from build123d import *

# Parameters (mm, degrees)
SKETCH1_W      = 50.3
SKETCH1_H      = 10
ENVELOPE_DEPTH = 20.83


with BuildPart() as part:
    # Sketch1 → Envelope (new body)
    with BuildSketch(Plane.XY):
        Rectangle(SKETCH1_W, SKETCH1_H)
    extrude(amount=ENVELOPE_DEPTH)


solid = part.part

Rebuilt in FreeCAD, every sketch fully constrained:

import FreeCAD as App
import Part
import Sketcher
Q = App.Units.Quantity

doc = App.newDocument("Part")
params = doc.addObject("Spreadsheet::Sheet", "Params")
for row, (alias, value) in enumerate([
    ("sketch1_height", "10 mm"),
    ("sketch1_width", "50.3 mm"),
    ("pad1_length", "20.83 mm"),
], start=1):
    params.set(f"A{row}", alias)
    params.set(f"B{row}", "=" + value)
    params.setAlias(f"B{row}", alias)

body = doc.addObject("PartDesign::Body", "Body")

# Sketch on XY plane
sketch1 = body.newObject("Sketcher::SketchObject", "Sketch")
sketch1.AttachmentSupport = (doc.getObject("XY_Plane"), [""])
sketch1.MapMode = "FlatFace"
sketch1.addGeometry([
    Part.LineSegment(App.Vector(-25, 5, 0), App.Vector(-25, -5, 0)),
    Part.LineSegment(App.Vector(-25, -5, 0), App.Vector(25, -5, 0)),
    Part.LineSegment(App.Vector(25, -5, 0), App.Vector(25, 5, 0)),
    Part.LineSegment(App.Vector(25, 5, 0), App.Vector(-25, 5, 0)),
], False)
sketch1.addConstraint([
    Sketcher.Constraint("Coincident", 0, 2, 1, 1),
    Sketcher.Constraint("Coincident", 1, 2, 2, 1),
    Sketcher.Constraint("Coincident", 2, 2, 3, 1),
    Sketcher.Constraint("Coincident", 3, 2, 0, 1),
    Sketcher.Constraint("Vertical", 0),
    Sketcher.Constraint("Horizontal", 1),
    Sketcher.Constraint("Vertical", 2),
    Sketcher.Constraint("Horizontal", 3),
    Sketcher.Constraint("Symmetric", 0, 2, 2, 2, -1, 1),
    Sketcher.Constraint("DistanceY", 0, 2, 0, 1, Q("10 mm")),
    Sketcher.Constraint("DistanceX", 1, 1, 1, 2, Q("50.3 mm")),
])
sketch1.setExpression("Constraints[9]", "Params.sketch1_height")
sketch1.setExpression("Constraints[10]", "Params.sketch1_width")
pad1 = body.newObject("PartDesign::Pad", "Pad")
pad1.Profile = sketch1
pad1.setExpression("Length", "Params.pad1_length")

doc.recompute()
